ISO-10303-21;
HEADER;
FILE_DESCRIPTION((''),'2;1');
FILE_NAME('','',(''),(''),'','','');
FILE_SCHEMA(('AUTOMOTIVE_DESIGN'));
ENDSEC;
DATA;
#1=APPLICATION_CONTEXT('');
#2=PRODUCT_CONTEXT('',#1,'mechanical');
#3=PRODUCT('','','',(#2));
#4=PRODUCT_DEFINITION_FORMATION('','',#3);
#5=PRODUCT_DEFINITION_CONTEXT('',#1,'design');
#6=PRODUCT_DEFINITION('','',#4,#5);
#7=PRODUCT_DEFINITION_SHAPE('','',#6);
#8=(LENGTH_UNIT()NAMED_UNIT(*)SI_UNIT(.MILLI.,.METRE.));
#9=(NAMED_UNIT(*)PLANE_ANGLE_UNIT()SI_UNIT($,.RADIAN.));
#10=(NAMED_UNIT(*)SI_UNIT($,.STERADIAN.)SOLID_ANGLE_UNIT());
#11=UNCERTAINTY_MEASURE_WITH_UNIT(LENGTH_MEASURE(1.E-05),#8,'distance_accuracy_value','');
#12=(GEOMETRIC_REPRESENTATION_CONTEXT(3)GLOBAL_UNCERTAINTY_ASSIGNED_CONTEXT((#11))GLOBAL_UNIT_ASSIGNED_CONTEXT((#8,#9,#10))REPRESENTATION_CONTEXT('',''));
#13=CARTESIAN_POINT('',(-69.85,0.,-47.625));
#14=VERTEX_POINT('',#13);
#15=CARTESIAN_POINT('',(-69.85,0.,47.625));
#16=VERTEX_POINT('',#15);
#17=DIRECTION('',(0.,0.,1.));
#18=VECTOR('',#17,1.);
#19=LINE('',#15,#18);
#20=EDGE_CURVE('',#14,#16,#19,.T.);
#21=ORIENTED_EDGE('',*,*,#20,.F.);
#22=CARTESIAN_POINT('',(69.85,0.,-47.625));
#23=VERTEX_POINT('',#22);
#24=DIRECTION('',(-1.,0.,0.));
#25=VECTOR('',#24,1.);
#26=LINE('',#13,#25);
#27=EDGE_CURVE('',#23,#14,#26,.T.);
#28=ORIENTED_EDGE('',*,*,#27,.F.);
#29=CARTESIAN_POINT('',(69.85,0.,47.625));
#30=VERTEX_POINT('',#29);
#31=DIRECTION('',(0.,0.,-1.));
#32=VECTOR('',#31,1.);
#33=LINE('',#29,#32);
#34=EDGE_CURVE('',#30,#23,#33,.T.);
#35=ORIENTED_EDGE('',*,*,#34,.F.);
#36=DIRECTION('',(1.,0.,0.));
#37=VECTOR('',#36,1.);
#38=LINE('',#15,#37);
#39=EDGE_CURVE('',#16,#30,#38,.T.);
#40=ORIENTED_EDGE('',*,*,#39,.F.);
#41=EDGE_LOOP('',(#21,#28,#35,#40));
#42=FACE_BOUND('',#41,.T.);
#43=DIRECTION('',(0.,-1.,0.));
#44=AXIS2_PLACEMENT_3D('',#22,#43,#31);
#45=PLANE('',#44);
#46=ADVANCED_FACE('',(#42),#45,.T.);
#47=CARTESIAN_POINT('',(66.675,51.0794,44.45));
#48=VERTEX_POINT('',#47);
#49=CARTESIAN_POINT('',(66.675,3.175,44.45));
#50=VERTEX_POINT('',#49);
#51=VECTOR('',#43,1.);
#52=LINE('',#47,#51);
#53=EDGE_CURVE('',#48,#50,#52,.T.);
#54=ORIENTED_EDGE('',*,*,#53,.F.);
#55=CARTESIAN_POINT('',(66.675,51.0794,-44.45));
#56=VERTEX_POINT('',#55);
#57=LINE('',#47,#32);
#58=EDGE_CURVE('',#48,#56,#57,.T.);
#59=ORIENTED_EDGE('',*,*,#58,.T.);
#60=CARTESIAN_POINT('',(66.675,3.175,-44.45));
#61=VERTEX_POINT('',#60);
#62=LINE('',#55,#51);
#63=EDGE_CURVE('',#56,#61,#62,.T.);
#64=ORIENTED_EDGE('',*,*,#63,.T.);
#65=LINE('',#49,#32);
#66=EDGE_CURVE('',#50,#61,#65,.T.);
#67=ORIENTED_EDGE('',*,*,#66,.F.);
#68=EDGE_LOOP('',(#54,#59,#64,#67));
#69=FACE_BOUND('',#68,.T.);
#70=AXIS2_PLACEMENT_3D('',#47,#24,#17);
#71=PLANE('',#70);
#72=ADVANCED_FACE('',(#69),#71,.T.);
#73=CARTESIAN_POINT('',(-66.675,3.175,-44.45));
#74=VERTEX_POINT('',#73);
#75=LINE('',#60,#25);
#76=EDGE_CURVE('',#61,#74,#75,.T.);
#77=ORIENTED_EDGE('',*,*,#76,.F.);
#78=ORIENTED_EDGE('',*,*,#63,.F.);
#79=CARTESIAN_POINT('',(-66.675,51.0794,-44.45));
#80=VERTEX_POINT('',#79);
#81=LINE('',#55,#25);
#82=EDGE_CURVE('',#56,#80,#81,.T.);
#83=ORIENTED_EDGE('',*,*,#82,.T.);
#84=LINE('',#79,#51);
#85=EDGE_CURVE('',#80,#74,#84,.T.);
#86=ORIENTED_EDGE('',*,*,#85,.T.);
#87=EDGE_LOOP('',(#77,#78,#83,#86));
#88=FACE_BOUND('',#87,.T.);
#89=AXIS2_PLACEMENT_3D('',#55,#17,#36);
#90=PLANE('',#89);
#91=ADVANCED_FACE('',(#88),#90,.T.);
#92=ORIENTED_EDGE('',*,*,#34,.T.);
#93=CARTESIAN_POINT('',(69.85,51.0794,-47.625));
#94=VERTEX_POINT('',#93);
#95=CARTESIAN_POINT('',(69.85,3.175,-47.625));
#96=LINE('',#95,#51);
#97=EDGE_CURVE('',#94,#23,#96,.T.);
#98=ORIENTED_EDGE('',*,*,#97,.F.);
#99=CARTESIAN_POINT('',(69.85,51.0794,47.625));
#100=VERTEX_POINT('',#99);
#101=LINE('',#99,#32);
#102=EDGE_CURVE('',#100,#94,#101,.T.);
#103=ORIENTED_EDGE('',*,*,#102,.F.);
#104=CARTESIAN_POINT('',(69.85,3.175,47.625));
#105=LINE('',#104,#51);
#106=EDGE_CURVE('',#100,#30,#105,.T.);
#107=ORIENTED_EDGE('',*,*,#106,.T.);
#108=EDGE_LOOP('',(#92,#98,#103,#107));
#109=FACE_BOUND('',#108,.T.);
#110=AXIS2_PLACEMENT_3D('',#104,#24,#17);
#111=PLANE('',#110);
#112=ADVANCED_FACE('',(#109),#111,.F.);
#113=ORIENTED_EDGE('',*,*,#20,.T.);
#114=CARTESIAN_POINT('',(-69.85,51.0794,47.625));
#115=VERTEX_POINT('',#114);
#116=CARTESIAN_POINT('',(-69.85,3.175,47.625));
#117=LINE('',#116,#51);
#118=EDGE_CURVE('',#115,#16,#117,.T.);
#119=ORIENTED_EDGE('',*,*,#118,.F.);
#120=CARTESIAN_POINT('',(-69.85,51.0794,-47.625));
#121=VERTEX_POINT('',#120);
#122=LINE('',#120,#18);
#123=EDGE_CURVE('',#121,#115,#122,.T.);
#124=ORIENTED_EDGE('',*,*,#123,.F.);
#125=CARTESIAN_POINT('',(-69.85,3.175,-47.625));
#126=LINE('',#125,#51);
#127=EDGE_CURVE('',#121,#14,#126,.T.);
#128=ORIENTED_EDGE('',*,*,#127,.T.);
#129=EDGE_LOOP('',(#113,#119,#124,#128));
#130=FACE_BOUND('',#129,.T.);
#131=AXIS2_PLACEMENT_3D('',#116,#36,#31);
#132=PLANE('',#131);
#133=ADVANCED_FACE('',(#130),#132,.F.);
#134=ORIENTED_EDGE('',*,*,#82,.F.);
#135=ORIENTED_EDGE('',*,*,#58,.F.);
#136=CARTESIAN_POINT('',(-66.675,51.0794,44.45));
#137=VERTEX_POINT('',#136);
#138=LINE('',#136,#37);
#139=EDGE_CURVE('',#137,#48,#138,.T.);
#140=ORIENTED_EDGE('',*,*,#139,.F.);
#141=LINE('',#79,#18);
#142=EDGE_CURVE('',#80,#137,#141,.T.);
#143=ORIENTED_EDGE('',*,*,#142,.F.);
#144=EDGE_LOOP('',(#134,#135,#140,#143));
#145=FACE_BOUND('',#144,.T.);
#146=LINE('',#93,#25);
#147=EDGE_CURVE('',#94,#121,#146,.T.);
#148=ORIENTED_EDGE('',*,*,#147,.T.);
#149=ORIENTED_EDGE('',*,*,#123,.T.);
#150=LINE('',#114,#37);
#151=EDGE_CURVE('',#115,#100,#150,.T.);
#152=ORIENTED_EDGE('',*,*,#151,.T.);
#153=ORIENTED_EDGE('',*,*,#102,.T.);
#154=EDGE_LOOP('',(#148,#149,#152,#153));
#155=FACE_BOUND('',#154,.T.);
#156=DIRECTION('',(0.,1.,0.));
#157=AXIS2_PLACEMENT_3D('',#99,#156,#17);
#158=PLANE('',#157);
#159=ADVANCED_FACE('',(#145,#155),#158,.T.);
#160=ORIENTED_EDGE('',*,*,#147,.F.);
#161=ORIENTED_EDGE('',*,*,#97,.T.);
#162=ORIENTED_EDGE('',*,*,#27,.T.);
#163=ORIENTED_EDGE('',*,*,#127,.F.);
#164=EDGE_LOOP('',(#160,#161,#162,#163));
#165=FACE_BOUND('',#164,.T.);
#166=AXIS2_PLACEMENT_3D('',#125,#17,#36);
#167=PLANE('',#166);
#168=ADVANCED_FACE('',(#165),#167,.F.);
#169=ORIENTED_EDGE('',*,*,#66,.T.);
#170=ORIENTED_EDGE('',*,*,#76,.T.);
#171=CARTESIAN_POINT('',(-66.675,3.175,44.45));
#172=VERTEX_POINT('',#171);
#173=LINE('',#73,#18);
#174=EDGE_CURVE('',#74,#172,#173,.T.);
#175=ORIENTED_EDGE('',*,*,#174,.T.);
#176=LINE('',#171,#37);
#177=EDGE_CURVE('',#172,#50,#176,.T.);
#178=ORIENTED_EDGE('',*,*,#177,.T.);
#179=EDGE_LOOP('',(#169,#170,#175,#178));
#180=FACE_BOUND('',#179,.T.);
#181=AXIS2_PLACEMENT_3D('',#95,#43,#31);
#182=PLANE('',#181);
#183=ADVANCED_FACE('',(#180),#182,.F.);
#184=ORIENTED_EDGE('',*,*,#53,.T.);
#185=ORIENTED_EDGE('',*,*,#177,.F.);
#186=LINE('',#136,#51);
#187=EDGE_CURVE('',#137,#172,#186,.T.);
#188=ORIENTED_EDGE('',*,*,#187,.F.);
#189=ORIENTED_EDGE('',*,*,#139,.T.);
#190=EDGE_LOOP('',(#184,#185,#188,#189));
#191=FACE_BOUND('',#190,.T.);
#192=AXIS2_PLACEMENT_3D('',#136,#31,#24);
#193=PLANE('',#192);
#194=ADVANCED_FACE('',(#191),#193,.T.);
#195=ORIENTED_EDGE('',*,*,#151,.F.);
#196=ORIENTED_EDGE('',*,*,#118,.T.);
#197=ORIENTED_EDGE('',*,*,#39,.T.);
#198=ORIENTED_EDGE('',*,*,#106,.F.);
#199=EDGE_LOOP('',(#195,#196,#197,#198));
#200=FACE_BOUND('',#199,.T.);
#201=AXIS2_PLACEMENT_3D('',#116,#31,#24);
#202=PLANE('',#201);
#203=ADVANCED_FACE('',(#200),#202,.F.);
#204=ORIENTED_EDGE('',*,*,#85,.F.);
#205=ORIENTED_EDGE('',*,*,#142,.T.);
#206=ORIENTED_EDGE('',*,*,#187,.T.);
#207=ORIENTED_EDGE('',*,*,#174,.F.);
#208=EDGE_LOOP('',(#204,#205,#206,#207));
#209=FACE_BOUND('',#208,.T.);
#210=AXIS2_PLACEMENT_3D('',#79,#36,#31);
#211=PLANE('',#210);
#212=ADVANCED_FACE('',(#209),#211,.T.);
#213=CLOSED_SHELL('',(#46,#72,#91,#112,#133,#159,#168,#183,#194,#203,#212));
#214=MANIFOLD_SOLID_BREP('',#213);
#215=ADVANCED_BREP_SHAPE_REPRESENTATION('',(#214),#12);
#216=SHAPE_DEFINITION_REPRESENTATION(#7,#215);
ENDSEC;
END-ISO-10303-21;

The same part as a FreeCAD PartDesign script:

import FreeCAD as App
import Part
import Sketcher

V = App.Vector
Q = App.Units.Quantity

doc = App.newDocument("Part")
body = doc.addObject("PartDesign::Body", "Body")

# Sketch on XZ plane
sketch1 = body.newObject("Sketcher::SketchObject", "Sketch")
sketch1.AttachmentSupport = (doc.getObject("XZ_Plane"), [""])
sketch1.MapMode = "FlatFace"
sketch1.addGeometry(Part.LineSegment(V(-69.85, -47.625, 0), V(-69.85, 47.625, 0)), False)
sketch1.addGeometry(Part.LineSegment(V(-69.85, 47.625, 0), V(69.85, 47.625, 0)), False)
sketch1.addGeometry(Part.LineSegment(V(69.85, 47.625, 0), V(69.85, -47.625, 0)), False)
sketch1.addGeometry(Part.LineSegment(V(69.85, -47.625, 0), V(-69.85, -47.625, 0)), False)
sketch1.addConstraint(Sketcher.Constraint("Coincident", 0, 2, 1, 1))
sketch1.addConstraint(Sketcher.Constraint("Coincident", 1, 2, 2, 1))
sketch1.addConstraint(Sketcher.Constraint("Coincident", 2, 2, 3, 1))
sketch1.addConstraint(Sketcher.Constraint("Coincident", 3, 2, 0, 1))
sketch1.addConstraint(Sketcher.Constraint("Vertical", 0))
sketch1.addConstraint(Sketcher.Constraint("Horizontal", 1))
sketch1.addConstraint(Sketcher.Constraint("Vertical", 2))
sketch1.addConstraint(Sketcher.Constraint("Horizontal", 3))
sketch1.addConstraint(Sketcher.Constraint("Symmetric", 0, 2, 2, 2, -1, 1))
sketch1.addConstraint(Sketcher.Constraint("DistanceX", 1, 1, 1, 2, Q("5.5 in")))
sketch1.addConstraint(Sketcher.Constraint("DistanceY", 0, 1, 0, 2, Q("3.75 in")))
pad1 = body.newObject("PartDesign::Pad", "Pad")
pad1.Profile = sketch1
pad1.Length = Q("0.125 in")
pad1.Reversed = True

# Sketch on XZ plane
sketch2 = body.newObject("Sketcher::SketchObject", "Sketch001")
sketch2.AttachmentSupport = (doc.getObject("XZ_Plane"), [""])
sketch2.MapMode = "FlatFace"
sketch2.AttachmentOffset = App.Placement(V(0, 0, -0.125 * 25.4), App.Rotation())
sketch2.addGeometry(Part.LineSegment(V(-69.85, -47.625, 0), V(-69.85, 47.625, 0)), False)
sketch2.addGeometry(Part.LineSegment(V(-69.85, 47.625, 0), V(69.85, 47.625, 0)), False)
sketch2.addGeometry(Part.LineSegment(V(69.85, 47.625, 0), V(69.85, -47.625, 0)), False)
sketch2.addGeometry(Part.LineSegment(V(69.85, -47.625, 0), V(-69.85, -47.625, 0)), False)
sketch2.addGeometry(Part.LineSegment(V(66.675, 44.45, 0), V(-66.675, 44.45, 0)), False)
sketch2.addGeometry(Part.LineSegment(V(-66.675, 44.45, 0), V(-66.675, -44.45, 0)), False)
sketch2.addGeometry(Part.LineSegment(V(-66.675, -44.45, 0), V(66.675, -44.45, 0)), False)
sketch2.addGeometry(Part.LineSegment(V(66.675, -44.45, 0), V(66.675, 44.45, 0)), False)
sketch2.addConstraint(Sketcher.Constraint("Coincident", 0, 2, 1, 1))
sketch2.addConstraint(Sketcher.Constraint("Coincident", 1, 2, 2, 1))
sketch2.addConstraint(Sketcher.Constraint("Coincident", 2, 2, 3, 1))
sketch2.addConstraint(Sketcher.Constraint("Coincident", 3, 2, 0, 1))
sketch2.addConstraint(Sketcher.Constraint("Coincident", 4, 2, 5, 1))
sketch2.addConstraint(Sketcher.Constraint("Coincident", 5, 2, 6, 1))
sketch2.addConstraint(Sketcher.Constraint("Coincident", 6, 2, 7, 1))
sketch2.addConstraint(Sketcher.Constraint("Coincident", 7, 2, 4, 1))
sketch2.addConstraint(Sketcher.Constraint("Vertical", 0))
sketch2.addConstraint(Sketcher.Constraint("Horizontal", 1))
sketch2.addConstraint(Sketcher.Constraint("Vertical", 2))
sketch2.addConstraint(Sketcher.Constraint("Horizontal", 3))
sketch2.addConstraint(Sketcher.Constraint("Horizontal", 4))
sketch2.addConstraint(Sketcher.Constraint("Vertical", 5))
sketch2.addConstraint(Sketcher.Constraint("Horizontal", 6))
sketch2.addConstraint(Sketcher.Constraint("Vertical", 7))
sketch2.addConstraint(Sketcher.Constraint("Symmetric", 0, 2, 2, 2, -1, 1))
sketch2.addConstraint(Sketcher.Constraint("Symmetric", 4, 2, 6, 2, -1, 1))
sketch2.addConstraint(Sketcher.Constraint("DistanceX", 1, 1, 1, 2, Q("5.5 in")))
sketch2.addConstraint(Sketcher.Constraint("DistanceY", 5, 2, 5, 1, Q("3.5 in")))
sketch2.addConstraint(Sketcher.Constraint("DistanceX", 4, 2, 4, 1, Q("5.25 in")))
sketch2.addConstraint(Sketcher.Constraint("DistanceY", 0, 1, 0, 2, Q("3.75 in")))
pad2 = body.newObject("PartDesign::Pad", "Pad001")
pad2.Profile = sketch2
pad2.Length = Q("1.886 in")
pad2.Reversed = True

doc.recompute()
